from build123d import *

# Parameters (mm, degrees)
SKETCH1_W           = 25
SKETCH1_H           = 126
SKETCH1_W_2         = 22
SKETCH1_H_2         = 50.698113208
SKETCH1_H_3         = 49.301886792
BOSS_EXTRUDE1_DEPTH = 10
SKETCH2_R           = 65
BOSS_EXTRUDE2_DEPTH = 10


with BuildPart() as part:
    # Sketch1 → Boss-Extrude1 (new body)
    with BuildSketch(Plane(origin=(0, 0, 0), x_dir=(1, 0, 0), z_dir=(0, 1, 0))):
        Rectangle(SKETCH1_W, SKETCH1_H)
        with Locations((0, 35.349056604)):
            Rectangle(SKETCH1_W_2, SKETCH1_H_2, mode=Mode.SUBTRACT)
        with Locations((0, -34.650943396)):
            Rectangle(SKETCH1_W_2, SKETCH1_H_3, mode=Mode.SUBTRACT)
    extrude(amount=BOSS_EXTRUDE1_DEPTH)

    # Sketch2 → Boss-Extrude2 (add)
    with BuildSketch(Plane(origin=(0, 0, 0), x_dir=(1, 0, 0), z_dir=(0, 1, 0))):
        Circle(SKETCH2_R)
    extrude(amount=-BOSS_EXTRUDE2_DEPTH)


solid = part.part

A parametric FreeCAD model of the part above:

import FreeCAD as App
import Part
import Sketcher
Q = App.Units.Quantity


def add_polygon(sketch, points):
    """Adds a closed chain of lines whose ends are joined by coincident constraints."""
    first, n = sketch.GeometryCount, len(points)
    for a, b in zip(points, points[1:] + points[:1]):
        sketch.addGeometry(Part.LineSegment(App.Vector(*a, 0), App.Vector(*b, 0)), False)
    for i in range(n):
        sketch.addConstraint(Sketcher.Constraint("Coincident", first + i, 2, first + (i + 1) % n, 1))

doc = App.newDocument("Part")
body = doc.addObject("PartDesign::Body", "Body")

# Sketch on XZ plane
sketch1 = doc.addObject("Sketcher::SketchObject", "Sketch")
body.addObject(sketch1)
sketch1.AttachmentSupport = (doc.XZ_Plane, [""])
sketch1.MapMode = "FlatFace"
add_polygon(sketch1, [(-12.5, -63), (-12.5, 63), (12.5, 63), (12.5, -63)])  # lines 0-3
add_polygon(sketch1, [(11, 59.301887), (-11, 59.301887), (-11, 10), (11, 10)])  # lines 4-7
add_polygon(sketch1, [(11, -10), (-11, -10), (-11, -60.698113), (11, -60.698113)])  # lines 8-11
sketch1.addConstraint([
    Sketcher.Constraint("Vertical", 0),
    Sketcher.Constraint("Horizontal", 1),
    Sketcher.Constraint("Vertical", 2),
    Sketcher.Constraint("Horizontal", 3),
    Sketcher.Constraint("Horizontal", 4),
    Sketcher.Constraint("Vertical", 5),
    Sketcher.Constraint("Horizontal", 6),
    Sketcher.Constraint("Vertical", 7),
    Sketcher.Constraint("Horizontal", 8),
    Sketcher.Constraint("Vertical", 9),
    Sketcher.Constraint("Horizontal", 10),
    Sketcher.Constraint("Vertical", 11),
    Sketcher.Constraint("Symmetric", 0, 2, 2, 2, -1, 1),
    Sketcher.Constraint("Symmetric", 6, 2, 8, 2, -1, 1),
    Sketcher.Constraint("Vertical", 5, 2, 8, 2),
    Sketcher.Constraint("Vertical", 7, 2, 10, 2),
    Sketcher.Constraint("DistanceX", 1, 1, 1, 2, Q("25 mm")),
    Sketcher.Constraint("DistanceX", 4, 2, 4, 1, Q("22 mm")),
    Sketcher.Constraint("DistanceY", 0, 1, 0, 2, Q("126 mm")),
    Sketcher.Constraint("DistanceY", -1, 1, 5, 2, Q("10 mm")),
    Sketcher.Constraint("DistanceY", 5, 2, 5, 1, Q("49.301887 mm")),
    Sketcher.Constraint("DistanceY", 9, 2, 9, 1, Q("50.698113 mm")),
])
pad1 = doc.addObject("PartDesign::Pad", "Pad")
body.addObject(pad1)
pad1.Profile = sketch1
pad1.Length = 10
pad1.Reversed = True

# Sketch on XZ plane
sketch2 = doc.addObject("Sketcher::SketchObject", "Sketch001")
body.addObject(sketch2)
sketch2.AttachmentSupport = (doc.XZ_Plane, [""])
sketch2.MapMode = "FlatFace"
sketch2.addGeometry(Part.Circle(App.Vector(0, 0, 0), App.Vector(0, 0, 1), 65), False)
sketch2.addConstraint([
    Sketcher.Constraint("Coincident", 0, 3, -1, 1),
    Sketcher.Constraint("Diameter", 0, Q("130 mm")),
])
pad2 = doc.addObject("PartDesign::Pad", "Pad001")
body.addObject(pad2)
pad2.Profile = sketch2
pad2.Length = 10

doc.recompute()
